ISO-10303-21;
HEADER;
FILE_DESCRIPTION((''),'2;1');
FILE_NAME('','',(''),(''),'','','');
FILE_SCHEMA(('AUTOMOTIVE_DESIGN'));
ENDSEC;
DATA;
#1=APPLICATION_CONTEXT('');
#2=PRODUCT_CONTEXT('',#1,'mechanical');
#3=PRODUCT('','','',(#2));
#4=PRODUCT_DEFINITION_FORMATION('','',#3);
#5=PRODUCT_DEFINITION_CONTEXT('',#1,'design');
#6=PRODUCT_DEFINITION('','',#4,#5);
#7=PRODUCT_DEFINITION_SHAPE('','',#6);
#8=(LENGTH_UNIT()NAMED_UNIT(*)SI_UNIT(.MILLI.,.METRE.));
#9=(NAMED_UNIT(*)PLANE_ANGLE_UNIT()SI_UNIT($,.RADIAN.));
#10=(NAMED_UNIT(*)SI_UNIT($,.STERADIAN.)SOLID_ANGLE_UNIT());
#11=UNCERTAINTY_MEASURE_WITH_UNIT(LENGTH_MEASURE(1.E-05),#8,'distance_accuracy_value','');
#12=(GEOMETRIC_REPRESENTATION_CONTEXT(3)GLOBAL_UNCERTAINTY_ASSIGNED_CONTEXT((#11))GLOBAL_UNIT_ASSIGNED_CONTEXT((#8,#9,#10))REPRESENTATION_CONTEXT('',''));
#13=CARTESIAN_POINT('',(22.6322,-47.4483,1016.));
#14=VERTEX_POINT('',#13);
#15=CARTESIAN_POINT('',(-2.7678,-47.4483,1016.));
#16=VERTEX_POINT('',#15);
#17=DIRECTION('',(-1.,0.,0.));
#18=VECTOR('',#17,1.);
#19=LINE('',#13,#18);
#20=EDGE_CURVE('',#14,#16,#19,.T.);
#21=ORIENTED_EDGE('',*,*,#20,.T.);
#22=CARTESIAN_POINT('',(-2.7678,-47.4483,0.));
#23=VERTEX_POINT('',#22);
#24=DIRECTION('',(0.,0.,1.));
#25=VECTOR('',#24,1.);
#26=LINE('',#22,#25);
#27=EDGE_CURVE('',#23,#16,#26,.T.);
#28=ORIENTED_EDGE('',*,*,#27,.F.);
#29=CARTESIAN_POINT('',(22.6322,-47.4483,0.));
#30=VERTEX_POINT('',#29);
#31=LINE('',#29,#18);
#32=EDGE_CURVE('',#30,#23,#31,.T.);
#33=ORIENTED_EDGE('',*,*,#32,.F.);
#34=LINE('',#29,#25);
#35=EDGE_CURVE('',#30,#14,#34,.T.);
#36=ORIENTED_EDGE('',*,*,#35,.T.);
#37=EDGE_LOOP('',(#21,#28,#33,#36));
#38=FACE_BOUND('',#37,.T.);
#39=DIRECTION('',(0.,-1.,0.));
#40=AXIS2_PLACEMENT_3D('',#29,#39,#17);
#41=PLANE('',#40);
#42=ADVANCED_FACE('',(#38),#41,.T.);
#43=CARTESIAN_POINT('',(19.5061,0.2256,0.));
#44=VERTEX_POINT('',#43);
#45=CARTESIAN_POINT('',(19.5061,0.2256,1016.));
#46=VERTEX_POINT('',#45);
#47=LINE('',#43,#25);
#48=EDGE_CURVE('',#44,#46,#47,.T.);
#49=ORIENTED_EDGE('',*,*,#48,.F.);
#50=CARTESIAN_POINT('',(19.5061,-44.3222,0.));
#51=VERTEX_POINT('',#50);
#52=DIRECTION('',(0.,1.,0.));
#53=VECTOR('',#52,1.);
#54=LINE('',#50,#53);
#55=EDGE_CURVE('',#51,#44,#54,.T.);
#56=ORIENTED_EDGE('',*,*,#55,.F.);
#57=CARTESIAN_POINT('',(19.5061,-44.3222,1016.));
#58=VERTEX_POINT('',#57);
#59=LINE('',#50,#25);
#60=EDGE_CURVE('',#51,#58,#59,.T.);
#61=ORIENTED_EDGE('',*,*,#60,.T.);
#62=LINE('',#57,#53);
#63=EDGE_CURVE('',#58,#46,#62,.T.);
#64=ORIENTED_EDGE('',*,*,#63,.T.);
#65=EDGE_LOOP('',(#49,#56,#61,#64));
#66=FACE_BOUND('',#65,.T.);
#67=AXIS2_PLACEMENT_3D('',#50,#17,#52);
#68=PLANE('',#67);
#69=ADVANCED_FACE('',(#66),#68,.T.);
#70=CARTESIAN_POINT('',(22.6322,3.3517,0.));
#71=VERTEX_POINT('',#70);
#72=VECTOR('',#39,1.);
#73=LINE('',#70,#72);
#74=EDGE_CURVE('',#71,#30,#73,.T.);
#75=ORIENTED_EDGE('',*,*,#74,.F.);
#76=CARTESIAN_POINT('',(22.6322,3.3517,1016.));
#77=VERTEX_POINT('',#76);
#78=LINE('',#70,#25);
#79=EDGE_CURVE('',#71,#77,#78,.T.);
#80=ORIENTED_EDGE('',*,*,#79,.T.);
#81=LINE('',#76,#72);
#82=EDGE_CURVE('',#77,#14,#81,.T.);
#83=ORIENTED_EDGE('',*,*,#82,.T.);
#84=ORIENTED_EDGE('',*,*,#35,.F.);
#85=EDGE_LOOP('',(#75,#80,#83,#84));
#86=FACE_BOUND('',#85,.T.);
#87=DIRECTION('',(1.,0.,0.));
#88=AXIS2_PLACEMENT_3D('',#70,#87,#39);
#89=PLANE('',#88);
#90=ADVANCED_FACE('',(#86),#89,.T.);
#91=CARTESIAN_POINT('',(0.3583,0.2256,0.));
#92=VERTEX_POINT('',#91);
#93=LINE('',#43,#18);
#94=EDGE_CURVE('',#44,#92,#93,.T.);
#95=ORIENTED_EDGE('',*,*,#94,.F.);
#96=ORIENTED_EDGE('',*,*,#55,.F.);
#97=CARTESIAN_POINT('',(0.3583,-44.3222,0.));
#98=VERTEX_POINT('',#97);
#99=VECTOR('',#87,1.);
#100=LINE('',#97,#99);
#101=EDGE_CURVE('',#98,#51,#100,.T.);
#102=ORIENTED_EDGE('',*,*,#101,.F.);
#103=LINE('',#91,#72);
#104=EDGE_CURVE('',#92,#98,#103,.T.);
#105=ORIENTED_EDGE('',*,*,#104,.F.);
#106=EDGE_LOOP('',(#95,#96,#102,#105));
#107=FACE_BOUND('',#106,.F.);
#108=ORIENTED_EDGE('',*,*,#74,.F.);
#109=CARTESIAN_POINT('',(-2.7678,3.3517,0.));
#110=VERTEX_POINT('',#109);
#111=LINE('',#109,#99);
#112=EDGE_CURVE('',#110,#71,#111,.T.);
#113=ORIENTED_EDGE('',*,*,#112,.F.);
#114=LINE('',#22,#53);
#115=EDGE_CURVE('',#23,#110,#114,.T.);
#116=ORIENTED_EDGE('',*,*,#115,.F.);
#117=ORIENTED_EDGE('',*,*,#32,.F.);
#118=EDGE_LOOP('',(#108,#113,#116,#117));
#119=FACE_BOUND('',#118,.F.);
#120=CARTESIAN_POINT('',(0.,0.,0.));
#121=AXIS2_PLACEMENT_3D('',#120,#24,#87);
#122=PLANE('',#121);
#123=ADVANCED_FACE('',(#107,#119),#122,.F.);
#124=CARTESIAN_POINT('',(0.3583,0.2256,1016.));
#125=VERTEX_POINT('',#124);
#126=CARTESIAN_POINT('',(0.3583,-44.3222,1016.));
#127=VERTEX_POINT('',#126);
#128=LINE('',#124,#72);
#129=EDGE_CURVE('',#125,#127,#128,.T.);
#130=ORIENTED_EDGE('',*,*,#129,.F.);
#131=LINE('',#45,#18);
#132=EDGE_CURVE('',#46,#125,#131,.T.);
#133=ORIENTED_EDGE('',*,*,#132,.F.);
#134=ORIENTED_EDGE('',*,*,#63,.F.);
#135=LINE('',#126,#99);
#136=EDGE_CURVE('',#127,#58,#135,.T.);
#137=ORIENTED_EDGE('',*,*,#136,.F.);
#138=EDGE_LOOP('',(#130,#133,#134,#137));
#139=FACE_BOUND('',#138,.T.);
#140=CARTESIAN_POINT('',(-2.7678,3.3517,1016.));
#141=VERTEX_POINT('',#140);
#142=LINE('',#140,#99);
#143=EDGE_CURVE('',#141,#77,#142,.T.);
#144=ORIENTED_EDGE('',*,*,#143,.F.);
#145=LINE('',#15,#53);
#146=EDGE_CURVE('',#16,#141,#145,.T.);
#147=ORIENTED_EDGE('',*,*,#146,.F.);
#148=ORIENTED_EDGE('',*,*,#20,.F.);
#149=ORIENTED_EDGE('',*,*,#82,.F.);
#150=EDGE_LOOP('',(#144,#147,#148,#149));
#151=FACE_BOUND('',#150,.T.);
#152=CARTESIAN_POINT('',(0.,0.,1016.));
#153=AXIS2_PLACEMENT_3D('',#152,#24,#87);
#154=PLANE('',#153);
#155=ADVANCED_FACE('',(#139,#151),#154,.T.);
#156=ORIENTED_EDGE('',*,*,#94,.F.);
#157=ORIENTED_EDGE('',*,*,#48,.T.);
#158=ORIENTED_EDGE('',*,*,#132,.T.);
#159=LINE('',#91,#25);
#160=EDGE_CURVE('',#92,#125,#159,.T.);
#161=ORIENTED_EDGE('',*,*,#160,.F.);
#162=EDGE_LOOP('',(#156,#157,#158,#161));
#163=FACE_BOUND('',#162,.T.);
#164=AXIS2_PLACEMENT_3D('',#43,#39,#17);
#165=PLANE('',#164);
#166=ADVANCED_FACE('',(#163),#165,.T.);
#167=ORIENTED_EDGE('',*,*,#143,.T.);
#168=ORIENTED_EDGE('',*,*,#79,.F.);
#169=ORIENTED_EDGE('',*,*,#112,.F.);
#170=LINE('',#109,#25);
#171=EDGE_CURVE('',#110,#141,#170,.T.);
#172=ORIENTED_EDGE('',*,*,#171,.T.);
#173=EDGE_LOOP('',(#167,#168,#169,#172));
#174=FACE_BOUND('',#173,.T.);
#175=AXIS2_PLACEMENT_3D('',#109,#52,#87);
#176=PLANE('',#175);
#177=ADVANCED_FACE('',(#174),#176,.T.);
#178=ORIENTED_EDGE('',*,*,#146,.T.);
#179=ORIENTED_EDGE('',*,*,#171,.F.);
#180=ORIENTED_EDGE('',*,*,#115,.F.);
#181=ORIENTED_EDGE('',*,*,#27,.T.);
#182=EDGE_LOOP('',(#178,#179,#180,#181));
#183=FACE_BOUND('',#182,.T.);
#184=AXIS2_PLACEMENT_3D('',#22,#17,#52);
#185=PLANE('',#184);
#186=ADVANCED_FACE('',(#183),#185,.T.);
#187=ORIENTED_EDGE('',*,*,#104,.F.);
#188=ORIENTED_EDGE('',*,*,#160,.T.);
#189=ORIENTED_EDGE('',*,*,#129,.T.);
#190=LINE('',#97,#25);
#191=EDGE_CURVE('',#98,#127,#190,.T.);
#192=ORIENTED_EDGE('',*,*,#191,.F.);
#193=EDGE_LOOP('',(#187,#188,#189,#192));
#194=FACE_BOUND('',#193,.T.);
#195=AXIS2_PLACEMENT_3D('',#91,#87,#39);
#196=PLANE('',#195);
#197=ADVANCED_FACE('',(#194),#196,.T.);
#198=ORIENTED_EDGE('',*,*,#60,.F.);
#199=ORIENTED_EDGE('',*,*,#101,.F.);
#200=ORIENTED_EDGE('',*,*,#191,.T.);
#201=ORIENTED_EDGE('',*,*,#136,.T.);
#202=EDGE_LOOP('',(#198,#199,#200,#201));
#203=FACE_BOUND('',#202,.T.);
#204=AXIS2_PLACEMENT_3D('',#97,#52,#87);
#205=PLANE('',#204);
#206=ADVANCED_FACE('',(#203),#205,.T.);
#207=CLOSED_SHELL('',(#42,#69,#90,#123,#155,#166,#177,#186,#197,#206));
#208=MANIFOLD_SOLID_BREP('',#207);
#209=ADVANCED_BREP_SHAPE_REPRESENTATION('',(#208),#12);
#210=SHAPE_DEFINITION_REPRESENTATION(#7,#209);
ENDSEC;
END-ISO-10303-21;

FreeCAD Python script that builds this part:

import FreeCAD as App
import Part
import Sketcher
Q = App.Units.Quantity

doc = App.newDocument("Part")
body = doc.addObject("PartDesign::Body", "Body")

# Sketch on XY plane
sketch1 = body.newObject("Sketcher::SketchObject", "Sketch")
sketch1.AttachmentSupport = (doc.getObject("XY_Plane"), [""])
sketch1.MapMode = "FlatFace"
sketch1.addGeometry([
    Part.LineSegment(App.Vector(23, 3, 0), App.Vector(-3, 3, 0)),  # 0
    Part.LineSegment(App.Vector(-3, 3, 0), App.Vector(-3, -47, 0)),  # 1
    Part.LineSegment(App.Vector(-3, -47, 0), App.Vector(23, -47, 0)),  # 2
    Part.LineSegment(App.Vector(23, -47, 0), App.Vector(23, 3, 0)),  # 3
    Part.LineSegment(App.Vector(0, 0, 0), App.Vector(20, 0, 0)),  # 4
    Part.LineSegment(App.Vector(20, 0, 0), App.Vector(20, -44, 0)),  # 5
    Part.LineSegment(App.Vector(20, -44, 0), App.Vector(0, -44, 0)),  # 6
    Part.LineSegment(App.Vector(0, -44, 0), App.Vector(0, 0, 0)),  # 7
], False)
sketch1.addConstraint([
    Sketcher.Constraint("Coincident", 0, 2, 1, 1),
    Sketcher.Constraint("Coincident", 1, 2, 2, 1),
    Sketcher.Constraint("Coincident", 2, 2, 3, 1),
    Sketcher.Constraint("Coincident", 3, 2, 0, 1),
    Sketcher.Constraint("Coincident", 4, 2, 5, 1),
    Sketcher.Constraint("Coincident", 5, 2, 6, 1),
    Sketcher.Constraint("Coincident", 6, 2, 7, 1),
    Sketcher.Constraint("Coincident", 7, 2, 4, 1),
    Sketcher.Constraint("Horizontal", 0),
    Sketcher.Constraint("Vertical", 1),
    Sketcher.Constraint("Horizontal", 2),
    Sketcher.Constraint("Vertical", 3),
    Sketcher.Constraint("Horizontal", 4),
    Sketcher.Constraint("Vertical", 5),
    Sketcher.Constraint("Horizontal", 6),
    Sketcher.Constraint("Vertical", 7),
    Sketcher.Constraint("DistanceX", 0, 2, 0, 1, Q("1 in")),
    Sketcher.Constraint("DistanceY", 1, 2, 1, 1, Q("2 in")),
    Sketcher.Constraint("DistanceX", 4, 1, 4, 2, Q("19.1478 mm")),
    Sketcher.Constraint("DistanceY", 5, 2, 5, 1, Q("44.5478 mm")),
    Sketcher.Constraint("DistanceX", -1, 1, 6, 2, Q("0.0141 in")),
    Sketcher.Constraint("DistanceX", 0, 2, -1, 1, Q("2.7678 mm")),
    Sketcher.Constraint("DistanceY", -1, 1, 0, 2, Q("3.3517 mm")),
    Sketcher.Constraint("DistanceY", -1, 1, 4, 2, Q("0.2256 mm")),
])
pad1 = body.newObject("PartDesign::Pad", "Pad")
pad1.Profile = sketch1
pad1.Length = Q("40 in")

doc.recompute()
